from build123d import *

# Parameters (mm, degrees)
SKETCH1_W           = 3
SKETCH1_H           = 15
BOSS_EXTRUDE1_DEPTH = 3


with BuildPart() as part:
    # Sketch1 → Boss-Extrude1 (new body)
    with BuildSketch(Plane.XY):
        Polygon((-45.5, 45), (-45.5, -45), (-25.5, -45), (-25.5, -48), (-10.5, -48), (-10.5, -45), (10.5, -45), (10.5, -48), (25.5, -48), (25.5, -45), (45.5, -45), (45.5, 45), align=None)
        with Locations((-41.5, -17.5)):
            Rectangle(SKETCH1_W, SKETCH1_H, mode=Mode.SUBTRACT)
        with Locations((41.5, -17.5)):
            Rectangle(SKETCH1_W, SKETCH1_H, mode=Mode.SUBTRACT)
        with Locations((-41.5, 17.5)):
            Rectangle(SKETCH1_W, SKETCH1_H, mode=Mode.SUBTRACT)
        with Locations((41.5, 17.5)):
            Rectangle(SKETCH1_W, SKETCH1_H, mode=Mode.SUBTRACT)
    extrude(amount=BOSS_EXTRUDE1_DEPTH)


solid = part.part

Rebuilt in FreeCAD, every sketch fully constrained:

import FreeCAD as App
import Part
import Sketcher
from FreeCAD import Vector


def add_polygon(sketch, points):
    """Adds a closed chain of lines whose ends are joined by coincident constraints."""
    first, n = sketch.GeometryCount, len(points)
    for a, b in zip(points, points[1:] + points[:1]):
        sketch.addGeometry(Part.LineSegment(App.Vector(*a, 0), App.Vector(*b, 0)), False)
    for i in range(n):
        sketch.addConstraint(Sketcher.Constraint("Coincident", first + i, 2, first + (i + 1) % n, 1))

doc = App.newDocument("Part")
body = doc.addObject("PartDesign::Body", "Body")

sketch1 = body.newObject("Sketcher::SketchObject", "Sketch")
sketch1.AttachmentSupport = (doc.getObject("XY_Plane"), [""])
sketch1.MapMode = "FlatFace"
add_polygon(sketch1, [(-45.5, 45), (-45.5, -45), (-25.5, -45), (-25.5, -48), (-10.5, -48), (-10.5, -45), (10.5, -45), (10.5, -48), (25.5, -48), (25.5, -45), (45.5, -45), (45.5, 45)])
add_polygon(sketch1, [(-40, -25), (-43, -25), (-43, -10), (-40, -10)])
add_polygon(sketch1, [(43, -25), (40, -25), (40, -10), (43, -10)])
add_polygon(sketch1, [(-40, 10), (-43, 10), (-43, 25), (-40, 25)])
add_polygon(sketch1, [(43, 10), (40, 10), (40, 25), (43, 25)])
sketch1.addConstraint([
    Sketcher.Constraint("Vertical", 0),
    Sketcher.Constraint("Horizontal", 1),
    Sketcher.Constraint("Vertical", 2),
    Sketcher.Constraint("Horizontal", 3),
    Sketcher.Constraint("Vertical", 4),
    Sketcher.Constraint("Horizontal", 5),
    Sketcher.Constraint("Vertical", 6),
    Sketcher.Constraint("Horizontal", 7),
    Sketcher.Constraint("Vertical", 8),
    Sketcher.Constraint("Horizontal", 9),
    Sketcher.Constraint("Vertical", 10),
    Sketcher.Constraint("Horizontal", 11),
    Sketcher.Constraint("Horizontal", 12),
    Sketcher.Constraint("Vertical", 13),
    Sketcher.Constraint("Horizontal", 14),
    Sketcher.Constraint("Vertical", 15),
    Sketcher.Constraint("Horizontal", 16),
    Sketcher.Constraint("Vertical", 17),
    Sketcher.Constraint("Horizontal", 18),
    Sketcher.Constraint("Vertical", 19),
    Sketcher.Constraint("Horizontal", 20),
    Sketcher.Constraint("Vertical", 21),
    Sketcher.Constraint("Horizontal", 22),
    Sketcher.Constraint("Vertical", 23),
    Sketcher.Constraint("Horizontal", 24),
    Sketcher.Constraint("Vertical", 25),
    Sketcher.Constraint("Horizontal", 26),
    Sketcher.Constraint("Vertical", 27),
    Sketcher.Constraint("Symmetric", 0, 2, 10, 2, -1, 1),
    Sketcher.Constraint("Symmetric", 18, 2, 20, 2, -1, 1),
    Sketcher.Constraint("Symmetric", 16, 2, 22, 2, -1, 1),
    Sketcher.Constraint("Symmetric", 14, 2, 24, 2, -1, 1),
    Sketcher.Constraint("Symmetric", 12, 2, 26, 2, -1, 1),
    Sketcher.Constraint("Symmetric", 3, 2, 6, 2, -2),
    Sketcher.Constraint("Symmetric", 1, 2, 8, 2, -2),
    Sketcher.Constraint("Symmetric", 15, 2, 16, 2, -2),
    Sketcher.Constraint("Symmetric", 13, 2, 18, 2, -2),
    Sketcher.Constraint("Horizontal", 1, 2, 4, 2),
    Sketcher.Constraint("Equal", 26, 2),
    Sketcher.Constraint("Equal", 7, 13),
    Sketcher.Constraint("DistanceX", 1, 1, 1, 2, 20.0),
    Sketcher.Constraint("DistanceX", 3, 1, 3, 2, 15.0),
    Sketcher.Constraint("DistanceX", 5, 1, 5, 2, 21.0),
    Sketcher.Constraint("DistanceX", 12, 2, 12, 1, 3.0),
    Sketcher.Constraint("DistanceY", 0, 2, 0, 1, 90.0),
    Sketcher.Constraint("DistanceX", 12, 2, -1, 1, 43.0),
    Sketcher.Constraint("DistanceY", 12, 2, -1, 1, 25.0),
])
pad1 = body.newObject("PartDesign::Pad", "Pad")
pad1.Profile = sketch1
pad1.Length = 3

doc.recompute()
